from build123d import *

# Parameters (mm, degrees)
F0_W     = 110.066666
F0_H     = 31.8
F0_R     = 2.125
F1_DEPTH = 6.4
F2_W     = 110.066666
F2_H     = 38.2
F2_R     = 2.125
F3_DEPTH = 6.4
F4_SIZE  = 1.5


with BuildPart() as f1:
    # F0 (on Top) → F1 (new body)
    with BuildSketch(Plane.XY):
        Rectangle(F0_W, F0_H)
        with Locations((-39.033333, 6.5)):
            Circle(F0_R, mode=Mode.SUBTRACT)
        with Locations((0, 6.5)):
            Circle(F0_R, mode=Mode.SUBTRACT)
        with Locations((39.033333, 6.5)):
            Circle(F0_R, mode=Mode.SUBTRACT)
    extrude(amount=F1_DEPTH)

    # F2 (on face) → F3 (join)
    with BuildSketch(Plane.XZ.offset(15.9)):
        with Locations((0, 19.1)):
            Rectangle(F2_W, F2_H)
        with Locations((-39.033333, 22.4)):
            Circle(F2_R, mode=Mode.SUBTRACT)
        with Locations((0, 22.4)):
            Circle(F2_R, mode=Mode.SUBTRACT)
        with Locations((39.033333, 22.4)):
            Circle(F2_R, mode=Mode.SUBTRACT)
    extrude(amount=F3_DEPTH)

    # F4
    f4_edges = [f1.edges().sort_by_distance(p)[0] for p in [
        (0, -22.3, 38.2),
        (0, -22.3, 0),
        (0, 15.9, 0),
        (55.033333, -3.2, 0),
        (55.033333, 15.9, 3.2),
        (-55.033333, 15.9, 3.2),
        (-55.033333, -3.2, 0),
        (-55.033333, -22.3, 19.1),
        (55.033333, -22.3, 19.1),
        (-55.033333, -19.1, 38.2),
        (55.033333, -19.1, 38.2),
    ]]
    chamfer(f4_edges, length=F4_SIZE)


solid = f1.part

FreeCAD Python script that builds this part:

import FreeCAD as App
import Part
import Sketcher

V = App.Vector


def edges_at(feature, points):
    """Names of the edges that pass closest to the given points."""
    edges = feature.Shape.Edges
    near = lambda p: min(range(len(edges)), key=lambda i: edges[i].distToShape(Part.Vertex(*p))[0])
    return sorted({f"Edge{near(p) + 1}" for p in points})

doc = App.newDocument("Part")
body = doc.addObject("PartDesign::Body", "Body")

# Sketch on XY plane
sketch1 = doc.addObject("Sketcher::SketchObject", "Sketch")
body.addObject(sketch1)
sketch1.AttachmentSupport = (doc.XY_Plane, [""])
sketch1.MapMode = "FlatFace"
sketch1.addGeometry(Part.LineSegment(V(-55.033333, 15.9, 0), V(-55.033333, -15.9, 0)), False)
sketch1.addGeometry(Part.LineSegment(V(-55.033333, -15.9, 0), V(55.033333, -15.9, 0)), False)
sketch1.addGeometry(Part.LineSegment(V(55.033333, -15.9, 0), V(55.033333, 15.9, 0)), False)
sketch1.addGeometry(Part.LineSegment(V(55.033333, 15.9, 0), V(-55.033333, 15.9, 0)), False)
sketch1.addGeometry(Part.Circle(V(-39.033333, 6.5, 0), V(0, 0, 1), 2.125), False)
sketch1.addGeometry(Part.Circle(V(0, 6.5, 0), V(0, 0, 1), 2.125), False)
sketch1.addGeometry(Part.Circle(V(39.033333, 6.5, 0), V(0, 0, 1), 2.125), False)
sketch1.addConstraint(Sketcher.Constraint("Coincident", 0, 2, 1, 1))
sketch1.addConstraint(Sketcher.Constraint("Coincident", 1, 2, 2, 1))
sketch1.addConstraint(Sketcher.Constraint("Coincident", 2, 2, 3, 1))
sketch1.addConstraint(Sketcher.Constraint("Coincident", 3, 2, 0, 1))
sketch1.addConstraint(Sketcher.Constraint("Vertical", 0))
sketch1.addConstraint(Sketcher.Constraint("Horizontal", 1))
sketch1.addConstraint(Sketcher.Constraint("Vertical", 2))
sketch1.addConstraint(Sketcher.Constraint("Horizontal", 3))
sketch1.addConstraint(Sketcher.Constraint("Equal", 4, 5))
sketch1.addConstraint(Sketcher.Constraint("Equal", 5, 6))
sketch1.addConstraint(Sketcher.Constraint("Symmetric", 0, 2, 2, 2, -1, 1))
sketch1.addConstraint(Sketcher.Constraint("Symmetric", 4, 3, 6, 3, -2))
sketch1.addConstraint(Sketcher.Constraint("PointOnObject", 5, 3, -2))
sketch1.addConstraint(Sketcher.Constraint("Horizontal", 4, 3, 5, 3))
sketch1.addConstraint(Sketcher.Constraint("Diameter", 4, 4.25))
sketch1.addConstraint(Sketcher.Constraint("DistanceY", 0, 2, 0, 1, 31.8))
sketch1.addConstraint(Sketcher.Constraint("DistanceX", 0, 2, 4, 3, 16.0))
sketch1.addConstraint(Sketcher.Constraint("DistanceY", -1, 1, 4, 3, 6.5))
sketch1.addConstraint(Sketcher.Constraint("DistanceX", 1, 1, 1, 2, 110.066666))
pad1 = doc.addObject("PartDesign::Pad", "Pad")
body.addObject(pad1)
pad1.Profile = sketch1
pad1.Length = 6.4

# Sketch on XZ plane
sketch2 = doc.addObject("Sketcher::SketchObject", "Sketch001")
body.addObject(sketch2)
sketch2.AttachmentSupport = (doc.XZ_Plane, [""])
sketch2.MapMode = "FlatFace"
sketch2.AttachmentOffset = App.Placement(V(0, 0, 15.9), App.Rotation())
sketch2.addGeometry(Part.LineSegment(V(-55.033333, 38.2, 0), V(-55.033333, 0, 0)), False)
sketch2.addGeometry(Part.LineSegment(V(-55.033333, 0, 0), V(55.033333, 0, 0)), False)
sketch2.addGeometry(Part.LineSegment(V(55.033333, 0, 0), V(55.033333, 38.2, 0)), False)
sketch2.addGeometry(Part.LineSegment(V(55.033333, 38.2, 0), V(-55.033333, 38.2, 0)), False)
sketch2.addGeometry(Part.Circle(V(-39.033333, 22.4, 0), V(0, 0, 1), 2.125), False)
sketch2.addGeometry(Part.Circle(V(0, 22.4, 0), V(0, 0, 1), 2.125), False)
sketch2.addGeometry(Part.Circle(V(39.033333, 22.4, 0), V(0, 0, 1), 2.125), False)
sketch2.addConstraint(Sketcher.Constraint("Coincident", 0, 2, 1, 1))
sketch2.addConstraint(Sketcher.Constraint("Coincident", 1, 2, 2, 1))
sketch2.addConstraint(Sketcher.Constraint("Coincident", 2, 2, 3, 1))
sketch2.addConstraint(Sketcher.Constraint("Coincident", 3, 2, 0, 1))
sketch2.addConstraint(Sketcher.Constraint("Vertical", 0))
sketch2.addConstraint(Sketcher.Constraint("Horizontal", 1))
sketch2.addConstraint(Sketcher.Constraint("Vertical", 2))
sketch2.addConstraint(Sketcher.Constraint("Horizontal", 3))
sketch2.addConstraint(Sketcher.Constraint("Equal", 4, 5))
sketch2.addConstraint(Sketcher.Constraint("Equal", 5, 6))
sketch2.addConstraint(Sketcher.Constraint("Symmetric", 0, 2, 1, 2, -1, 1))
sketch2.addConstraint(Sketcher.Constraint("Symmetric", 4, 3, 6, 3, -2))
sketch2.addConstraint(Sketcher.Constraint("PointOnObject", 5, 3, -2))
sketch2.addConstraint(Sketcher.Constraint("Horizontal", 4, 3, 5, 3))
sketch2.addConstraint(Sketcher.Constraint("Diameter", 4, 4.25))
sketch2.addConstraint(Sketcher.Constraint("DistanceY", 0, 2, 0, 1, 38.2))
sketch2.addConstraint(Sketcher.Constraint("DistanceX", 0, 2, 4, 3, 16.0))
sketch2.addConstraint(Sketcher.Constraint("DistanceY", -1, 1, 4, 3, 22.4))
sketch2.addConstraint(Sketcher.Constraint("DistanceX", 1, 1, 1, 2, 110.066666))
pad2 = doc.addObject("PartDesign::Pad", "Pad001")
body.addObject(pad2)
pad2.Profile = sketch2
pad2.Length = 6.4
doc.recompute()

chamfer = doc.addObject("PartDesign::Chamfer", "Chamfer")
body.addObject(chamfer)
chamfer.Base = (pad2, edges_at(pad2, [
    (0, -22.3, 38.2),
    (0, -22.3, 0),
    (0, 15.9, 0),
    (55.033, -3.2, 0),
    (55.033, 15.9, 3.2),
    (-55.033, 15.9, 3.2),
    (-55.033, -3.2, 0),
    (-55.033, -22.3, 19.1),
    (55.033, -22.3, 19.1),
    (-55.033, -19.1, 38.2),
    (55.033, -19.1, 38.2),
]))
chamfer.Size = 1.5

doc.recompute()
